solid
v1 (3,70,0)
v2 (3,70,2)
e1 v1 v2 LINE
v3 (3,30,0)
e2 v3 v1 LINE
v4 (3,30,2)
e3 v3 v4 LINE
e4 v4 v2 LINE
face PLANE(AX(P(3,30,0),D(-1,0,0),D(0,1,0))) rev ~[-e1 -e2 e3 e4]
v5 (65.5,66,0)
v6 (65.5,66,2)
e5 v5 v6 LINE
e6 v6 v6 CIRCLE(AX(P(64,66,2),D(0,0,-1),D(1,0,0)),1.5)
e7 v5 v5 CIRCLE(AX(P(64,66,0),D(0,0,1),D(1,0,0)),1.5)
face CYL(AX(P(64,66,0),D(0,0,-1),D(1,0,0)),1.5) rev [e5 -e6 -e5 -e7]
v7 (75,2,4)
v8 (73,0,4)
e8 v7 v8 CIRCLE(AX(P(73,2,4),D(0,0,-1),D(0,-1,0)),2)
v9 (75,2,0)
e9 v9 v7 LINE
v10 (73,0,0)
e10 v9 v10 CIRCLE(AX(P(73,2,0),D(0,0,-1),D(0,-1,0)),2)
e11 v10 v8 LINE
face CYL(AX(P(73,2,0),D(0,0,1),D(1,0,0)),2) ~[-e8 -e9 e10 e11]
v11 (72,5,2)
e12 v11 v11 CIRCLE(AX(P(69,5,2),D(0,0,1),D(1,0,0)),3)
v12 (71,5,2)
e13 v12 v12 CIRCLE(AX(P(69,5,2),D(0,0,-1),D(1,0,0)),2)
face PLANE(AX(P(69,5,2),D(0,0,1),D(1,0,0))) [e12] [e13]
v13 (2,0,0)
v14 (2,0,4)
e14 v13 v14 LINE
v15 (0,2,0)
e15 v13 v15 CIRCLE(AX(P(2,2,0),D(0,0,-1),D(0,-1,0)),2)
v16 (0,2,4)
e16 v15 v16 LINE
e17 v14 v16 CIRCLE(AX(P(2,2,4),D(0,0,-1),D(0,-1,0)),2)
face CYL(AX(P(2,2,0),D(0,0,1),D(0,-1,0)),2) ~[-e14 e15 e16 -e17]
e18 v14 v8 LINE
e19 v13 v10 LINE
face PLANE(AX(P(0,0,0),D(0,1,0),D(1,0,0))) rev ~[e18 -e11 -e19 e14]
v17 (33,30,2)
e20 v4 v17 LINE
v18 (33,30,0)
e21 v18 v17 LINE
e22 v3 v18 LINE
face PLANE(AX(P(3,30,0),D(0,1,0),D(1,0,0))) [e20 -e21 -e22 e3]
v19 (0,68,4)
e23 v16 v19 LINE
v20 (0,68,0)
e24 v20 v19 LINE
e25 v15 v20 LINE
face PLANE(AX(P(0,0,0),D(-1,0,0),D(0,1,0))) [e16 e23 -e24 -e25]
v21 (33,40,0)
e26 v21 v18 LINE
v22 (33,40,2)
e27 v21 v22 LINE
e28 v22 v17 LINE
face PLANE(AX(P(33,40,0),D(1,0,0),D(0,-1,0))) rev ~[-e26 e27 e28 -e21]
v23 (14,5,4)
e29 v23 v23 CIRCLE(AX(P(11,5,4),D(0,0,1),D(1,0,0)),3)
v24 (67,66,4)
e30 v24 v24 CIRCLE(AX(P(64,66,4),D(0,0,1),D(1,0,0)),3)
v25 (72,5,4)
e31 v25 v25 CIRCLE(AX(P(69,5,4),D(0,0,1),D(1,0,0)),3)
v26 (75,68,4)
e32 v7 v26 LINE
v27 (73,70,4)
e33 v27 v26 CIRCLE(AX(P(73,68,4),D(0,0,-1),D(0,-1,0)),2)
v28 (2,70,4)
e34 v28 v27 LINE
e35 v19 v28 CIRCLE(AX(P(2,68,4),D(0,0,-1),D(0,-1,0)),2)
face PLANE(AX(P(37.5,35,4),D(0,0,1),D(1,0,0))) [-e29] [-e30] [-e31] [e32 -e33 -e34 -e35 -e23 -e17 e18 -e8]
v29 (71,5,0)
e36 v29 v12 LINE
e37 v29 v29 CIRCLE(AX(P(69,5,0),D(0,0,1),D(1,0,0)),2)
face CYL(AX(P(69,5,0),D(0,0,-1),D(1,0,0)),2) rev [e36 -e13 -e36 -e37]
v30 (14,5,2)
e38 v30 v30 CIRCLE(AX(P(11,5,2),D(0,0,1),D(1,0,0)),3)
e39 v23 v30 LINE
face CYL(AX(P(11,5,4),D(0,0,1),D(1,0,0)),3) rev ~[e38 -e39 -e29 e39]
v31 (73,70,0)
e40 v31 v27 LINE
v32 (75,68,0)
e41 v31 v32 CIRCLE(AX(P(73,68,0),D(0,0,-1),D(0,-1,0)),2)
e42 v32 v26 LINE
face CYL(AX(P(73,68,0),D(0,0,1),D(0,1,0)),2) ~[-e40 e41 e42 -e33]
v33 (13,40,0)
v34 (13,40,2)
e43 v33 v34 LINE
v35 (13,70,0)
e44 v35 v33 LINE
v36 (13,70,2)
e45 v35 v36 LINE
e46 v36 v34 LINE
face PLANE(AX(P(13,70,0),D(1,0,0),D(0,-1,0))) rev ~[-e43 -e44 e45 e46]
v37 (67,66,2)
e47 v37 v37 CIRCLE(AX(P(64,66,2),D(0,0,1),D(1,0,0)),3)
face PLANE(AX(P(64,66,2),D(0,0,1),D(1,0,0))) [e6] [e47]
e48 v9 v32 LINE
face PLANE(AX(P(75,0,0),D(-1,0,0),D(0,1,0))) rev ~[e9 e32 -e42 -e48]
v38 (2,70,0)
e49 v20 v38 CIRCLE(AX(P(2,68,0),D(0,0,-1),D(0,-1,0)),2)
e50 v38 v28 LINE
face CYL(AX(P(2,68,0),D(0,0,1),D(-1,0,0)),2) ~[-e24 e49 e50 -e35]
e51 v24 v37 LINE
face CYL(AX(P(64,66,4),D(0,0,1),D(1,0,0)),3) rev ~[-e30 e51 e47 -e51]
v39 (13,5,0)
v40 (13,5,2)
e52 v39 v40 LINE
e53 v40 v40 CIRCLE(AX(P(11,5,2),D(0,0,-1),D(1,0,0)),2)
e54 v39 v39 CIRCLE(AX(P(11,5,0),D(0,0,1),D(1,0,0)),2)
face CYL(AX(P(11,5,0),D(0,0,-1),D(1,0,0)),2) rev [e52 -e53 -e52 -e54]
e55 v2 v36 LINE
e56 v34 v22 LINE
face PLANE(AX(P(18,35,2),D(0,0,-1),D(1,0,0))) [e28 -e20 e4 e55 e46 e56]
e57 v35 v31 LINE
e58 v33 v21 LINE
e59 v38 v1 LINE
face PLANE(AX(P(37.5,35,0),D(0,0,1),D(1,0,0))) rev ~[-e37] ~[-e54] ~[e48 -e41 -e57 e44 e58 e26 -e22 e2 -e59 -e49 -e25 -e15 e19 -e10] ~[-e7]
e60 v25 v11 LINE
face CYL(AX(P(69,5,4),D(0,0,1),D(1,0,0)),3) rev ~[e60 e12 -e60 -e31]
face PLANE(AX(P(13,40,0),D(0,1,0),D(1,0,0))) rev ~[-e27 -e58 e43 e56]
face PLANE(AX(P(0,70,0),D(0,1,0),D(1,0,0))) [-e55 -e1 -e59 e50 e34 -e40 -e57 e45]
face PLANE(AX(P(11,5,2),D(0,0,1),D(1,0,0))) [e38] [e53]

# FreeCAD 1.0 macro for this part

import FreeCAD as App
import Part
import Sketcher
from FreeCAD import Vector


def edges_at(feature, points):
    """Names of the edges that pass closest to the given points."""
    edges = feature.Shape.Edges
    near = lambda p: min(range(len(edges)), key=lambda i: edges[i].distToShape(Part.Vertex(*p))[0])
    return sorted({f"Edge{near(p) + 1}" for p in points})


def add_polygon(sketch, points):
    """Adds a closed chain of lines whose ends are joined by coincident constraints."""
    first, n = sketch.GeometryCount, len(points)
    for a, b in zip(points, points[1:] + points[:1]):
        sketch.addGeometry(Part.LineSegment(App.Vector(*a, 0), App.Vector(*b, 0)), False)
    for i in range(n):
        sketch.addConstraint(Sketcher.Constraint("Coincident", first + i, 2, first + (i + 1) % n, 1))

doc = App.newDocument("Part")
body = doc.addObject("PartDesign::Body", "Body")

# Sketch on XY plane
sketch1 = body.newObject("Sketcher::SketchObject", "Sketch")
sketch1.AttachmentSupport = (doc.getObject("XY_Plane"), [""])
sketch1.MapMode = "FlatFace"
add_polygon(sketch1, [(0, 70), (0, 0), (75, 0), (75, 70)])  # lines 0-3
sketch1.addGeometry(Part.Circle(Vector(11, 5, 0), Vector(0, 0, 1), 2), False)  # 4
sketch1.addGeometry(Part.Circle(Vector(69, 5, 0), Vector(0, 0, 1), 2), False)  # 5
sketch1.addGeometry(Part.Circle(Vector(64, 66, 0), Vector(0, 0, 1), 1.5), False)  # 6
sketch1.addConstraint([
    Sketcher.Constraint("Vertical", 0),
    Sketcher.Constraint("Horizontal", 1),
    Sketcher.Constraint("Vertical", 2),
    Sketcher.Constraint("Horizontal", 3),
    Sketcher.Constraint("Coincident", 0, 2, -1, 1),
    Sketcher.Constraint("Equal", 4, 5),
    Sketcher.Constraint("Horizontal", 4, 3, 5, 3),
    Sketcher.Constraint("Diameter", 4, 4.0),
    Sketcher.Constraint("Diameter", 6, 3.0),
    Sketcher.Constraint("DistanceX", 1, 1, 1, 2, 75.0),
    Sketcher.Constraint("DistanceY", 0, 2, 0, 1, 70.0),
    Sketcher.Constraint("DistanceX", -1, 1, 4, 3, 11.0),
    Sketcher.Constraint("DistanceY", -1, 1, 4, 3, 5.0),
    Sketcher.Constraint("DistanceX", -1, 1, 5, 3, 69.0),
    Sketcher.Constraint("DistanceX", -1, 1, 6, 3, 64.0),
    Sketcher.Constraint("DistanceY", -1, 1, 6, 3, 66.0),
])
pad1 = body.newObject("PartDesign::Pad", "Pad")
pad1.Profile = sketch1
pad1.Length = 4

# Sketch on XY plane
sketch2 = body.newObject("Sketcher::SketchObject", "Sketch001")
sketch2.AttachmentSupport = (doc.getObject("XY_Plane"), [""])
sketch2.MapMode = "FlatFace"
add_polygon(sketch2, [(3, 30), (3, 70), (13, 70), (13, 40), (33, 40), (33, 30)])  # lines 0-5
sketch2.addConstraint([
    Sketcher.Constraint("Vertical", 0),
    Sketcher.Constraint("Horizontal", 1),
    Sketcher.Constraint("Vertical", 2),
    Sketcher.Constraint("Horizontal", 3),
    Sketcher.Constraint("Vertical", 4),
    Sketcher.Constraint("Horizontal", 5),
    Sketcher.Constraint("Equal", 5, 2),
    Sketcher.Constraint("Equal", 1, 4),
    Sketcher.Constraint("DistanceX", 1, 1, 1, 2, 10.0),
    Sketcher.Constraint("DistanceX", 3, 1, 3, 2, 20.0),
    Sketcher.Constraint("DistanceX", -1, 1, 0, 2, 3.0),
    Sketcher.Constraint("DistanceY", -1, 1, 0, 2, 70.0),
])
pocket1 = body.newObject("PartDesign::Pocket", "Pocket")
pocket1.Profile = sketch2
pocket1.Length = 2
pocket1.Reversed = True

# Sketch on XY plane
sketch3 = body.newObject("Sketcher::SketchObject", "Sketch002")
sketch3.AttachmentSupport = (doc.getObject("XY_Plane"), [""])
sketch3.MapMode = "FlatFace"
sketch3.AttachmentOffset = App.Placement(Vector(0, 0, 4), App.Rotation())
sketch3.addGeometry([
    Part.Circle(Vector(11, 5, 0), Vector(0, 0, 1), 3),
    Part.Circle(Vector(69, 5, 0), Vector(0, 0, 1), 3),
    Part.Circle(Vector(64, 66, 0), Vector(0, 0, 1), 3),
], False)
sketch3.addConstraint([
    Sketcher.Constraint("Equal", 0, 1),
    Sketcher.Constraint("Equal", 1, 2),
    Sketcher.Constraint("Horizontal", 0, 3, 1, 3),
    Sketcher.Constraint("Diameter", 0, 6.0),
    Sketcher.Constraint("DistanceX", -1, 1, 0, 3, 11.0),
    Sketcher.Constraint("DistanceY", -1, 1, 0, 3, 5.0),
    Sketcher.Constraint("DistanceX", -1, 1, 1, 3, 69.0),
    Sketcher.Constraint("DistanceX", -1, 1, 2, 3, 64.0),
    Sketcher.Constraint("DistanceY", -1, 1, 2, 3, 66.0),
])
pocket2 = body.newObject("PartDesign::Pocket", "Pocket001")
pocket2.Profile = sketch3
pocket2.Length = 2
doc.recompute()

fillet = body.newObject("PartDesign::Fillet", "Fillet")
fillet.Base = (pocket2, edges_at(pocket2, [(0, 70, 2)]))
fillet.Radius = 2
doc.recompute()

fillet2 = body.newObject("PartDesign::Fillet", "Fillet001")
fillet2.Base = (fillet, edges_at(fillet, [(75, 70, 2)]))
fillet2.Radius = 2
doc.recompute()

fillet3 = body.newObject("PartDesign::Fillet", "Fillet002")
fillet3.Base = (fillet2, edges_at(fillet2, [(75, 0, 2)]))
fillet3.Radius = 2
doc.recompute()

fillet4 = body.newObject("PartDesign::Fillet", "Fillet003")
fillet4.Base = (fillet3, edges_at(fillet3, [(0, 0, 2)]))
fillet4.Radius = 2

doc.recompute()
